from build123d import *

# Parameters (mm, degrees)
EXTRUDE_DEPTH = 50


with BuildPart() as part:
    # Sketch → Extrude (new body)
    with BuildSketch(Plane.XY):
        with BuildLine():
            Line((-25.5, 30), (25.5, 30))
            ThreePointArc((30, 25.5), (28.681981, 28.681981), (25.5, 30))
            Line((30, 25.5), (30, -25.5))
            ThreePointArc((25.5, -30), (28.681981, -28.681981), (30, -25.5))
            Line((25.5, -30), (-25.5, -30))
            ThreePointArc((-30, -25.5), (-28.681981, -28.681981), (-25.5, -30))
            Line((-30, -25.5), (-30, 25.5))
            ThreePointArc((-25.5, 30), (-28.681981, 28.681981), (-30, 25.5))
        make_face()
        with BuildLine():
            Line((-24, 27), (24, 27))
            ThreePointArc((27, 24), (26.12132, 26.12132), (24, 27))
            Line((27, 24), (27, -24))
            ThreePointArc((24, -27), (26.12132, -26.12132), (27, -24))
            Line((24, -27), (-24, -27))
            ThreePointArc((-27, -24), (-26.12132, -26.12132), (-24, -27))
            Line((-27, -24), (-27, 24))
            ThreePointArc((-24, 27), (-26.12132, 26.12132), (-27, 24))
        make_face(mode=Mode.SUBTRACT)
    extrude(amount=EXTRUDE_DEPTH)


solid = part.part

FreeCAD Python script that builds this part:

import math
import FreeCAD as App
import Part
import Sketcher

V = App.Vector
Q = App.Units.Quantity

doc = App.newDocument("Part")
body = doc.addObject("PartDesign::Body", "Body")

sketch1 = doc.addObject("Sketcher::SketchObject", "Sketch")
body.addObject(sketch1)
sketch1.AttachmentSupport = (doc.XY_Plane, [""])
sketch1.MapMode = "FlatFace"
sketch1.addGeometry([
    Part.LineSegment(V(25.5, 30, 0), V(-25.5, 30, 0)),
    Part.ArcOfCircle(Part.Circle(V(-25.500002, 25.500002, 0), V(0, 0, 1), 4.499998), math.radians(89.999979), math.radians(180.000021)),
    Part.LineSegment(V(-30, 25.5, 0), V(-30, -25.5, 0)),
    Part.ArcOfCircle(Part.Circle(V(-25.500002, -25.500002, 0), V(0, 0, 1), 4.499998), math.radians(179.999979), math.radians(270.000021)),
    Part.LineSegment(V(-25.5, -30, 0), V(25.5, -30, 0)),
    Part.ArcOfCircle(Part.Circle(V(25.500002, -25.500002, 0), V(0, 0, 1), 4.499998), math.radians(-90.000021), math.radians(0.000021)),
    Part.LineSegment(V(30, -25.5, 0), V(30, 25.5, 0)),
    Part.ArcOfCircle(Part.Circle(V(25.500002, 25.500002, 0), V(0, 0, 1), 4.499998), math.radians(-0.000021), math.radians(90.000021)),
    Part.LineSegment(V(-24, 27, 0), V(24, 27, 0)),
    Part.ArcOfCircle(Part.Circle(V(23.999999, 23.999999, 0), V(0, 0, 1), 3.000001), math.radians(0.000022), math.radians(89.999978)),
    Part.LineSegment(V(27, 24, 0), V(27, -24, 0)),
    Part.ArcOfCircle(Part.Circle(V(23.999999, -23.999999, 0), V(0, 0, 1), 3.000001), math.radians(-89.999978), math.radians(-0.000022)),
    Part.LineSegment(V(24, -27, 0), V(-24, -27, 0)),
    Part.ArcOfCircle(Part.Circle(V(-23.999999, -23.999999, 0), V(0, 0, 1), 3.000001), math.radians(-179.999978), math.radians(-90.000022)),
    Part.LineSegment(V(-27, -24, 0), V(-27, 24, 0)),
    Part.ArcOfCircle(Part.Circle(V(-23.999999, 23.999999, 0), V(0, 0, 1), 3.000001), math.radians(90.000022), math.radians(179.999978)),
], False)
sketch1.addConstraint([
    Sketcher.Constraint("Tangent", 0, 2, 1, 1),
    Sketcher.Constraint("Tangent", 1, 2, 2, 1),
    Sketcher.Constraint("Tangent", 2, 2, 3, 1),
    Sketcher.Constraint("Tangent", 3, 2, 4, 1),
    Sketcher.Constraint("Tangent", 4, 2, 5, 1),
    Sketcher.Constraint("Tangent", 5, 2, 6, 1),
    Sketcher.Constraint("Tangent", 6, 2, 7, 1),
    Sketcher.Constraint("Tangent", 7, 2, 0, 1),
    Sketcher.Constraint("Tangent", 8, 2, 9, 2),
    Sketcher.Constraint("Tangent", 9, 1, 10, 1),
    Sketcher.Constraint("Tangent", 10, 2, 11, 2),
    Sketcher.Constraint("Tangent", 11, 1, 12, 1),
    Sketcher.Constraint("Tangent", 12, 2, 13, 2),
    Sketcher.Constraint("Tangent", 13, 1, 14, 1),
    Sketcher.Constraint("Tangent", 14, 2, 15, 2),
    Sketcher.Constraint("Tangent", 15, 1, 8, 1),
    Sketcher.Constraint("Horizontal", 0),
    Sketcher.Constraint("Vertical", 2),
    Sketcher.Constraint("Horizontal", 4),
    Sketcher.Constraint("Vertical", 6),
    Sketcher.Constraint("Horizontal", 8),
    Sketcher.Constraint("Vertical", 10),
    Sketcher.Constraint("Horizontal", 12),
    Sketcher.Constraint("Vertical", 14),
    Sketcher.Constraint("Equal", 1, 3),
    Sketcher.Constraint("Equal", 3, 5),
    Sketcher.Constraint("Equal", 5, 7),
    Sketcher.Constraint("Equal", 9, 11),
    Sketcher.Constraint("Equal", 11, 13),
    Sketcher.Constraint("Equal", 13, 15),
    Sketcher.Constraint("Symmetric", 1, 3, 5, 3, -1, 1),
    Sketcher.Constraint("Symmetric", 9, 3, 13, 3, -1, 1),
    Sketcher.Constraint("Equal", 4, 2),
    Sketcher.Constraint("Equal", 12, 10),
    Sketcher.Constraint("Radius", 9, Q("3.000001 mm")),
    Sketcher.Constraint("Radius", 1, Q("4.499998 mm")),
    Sketcher.Constraint("DistanceX", 0, 2, 0, 1, Q("51 mm")),
    Sketcher.Constraint("DistanceX", 8, 1, 8, 2, Q("48 mm")),
])
pad1 = doc.addObject("PartDesign::Pad", "Pad")
body.addObject(pad1)
pad1.Profile = sketch1
pad1.Length = 50

doc.recompute()
